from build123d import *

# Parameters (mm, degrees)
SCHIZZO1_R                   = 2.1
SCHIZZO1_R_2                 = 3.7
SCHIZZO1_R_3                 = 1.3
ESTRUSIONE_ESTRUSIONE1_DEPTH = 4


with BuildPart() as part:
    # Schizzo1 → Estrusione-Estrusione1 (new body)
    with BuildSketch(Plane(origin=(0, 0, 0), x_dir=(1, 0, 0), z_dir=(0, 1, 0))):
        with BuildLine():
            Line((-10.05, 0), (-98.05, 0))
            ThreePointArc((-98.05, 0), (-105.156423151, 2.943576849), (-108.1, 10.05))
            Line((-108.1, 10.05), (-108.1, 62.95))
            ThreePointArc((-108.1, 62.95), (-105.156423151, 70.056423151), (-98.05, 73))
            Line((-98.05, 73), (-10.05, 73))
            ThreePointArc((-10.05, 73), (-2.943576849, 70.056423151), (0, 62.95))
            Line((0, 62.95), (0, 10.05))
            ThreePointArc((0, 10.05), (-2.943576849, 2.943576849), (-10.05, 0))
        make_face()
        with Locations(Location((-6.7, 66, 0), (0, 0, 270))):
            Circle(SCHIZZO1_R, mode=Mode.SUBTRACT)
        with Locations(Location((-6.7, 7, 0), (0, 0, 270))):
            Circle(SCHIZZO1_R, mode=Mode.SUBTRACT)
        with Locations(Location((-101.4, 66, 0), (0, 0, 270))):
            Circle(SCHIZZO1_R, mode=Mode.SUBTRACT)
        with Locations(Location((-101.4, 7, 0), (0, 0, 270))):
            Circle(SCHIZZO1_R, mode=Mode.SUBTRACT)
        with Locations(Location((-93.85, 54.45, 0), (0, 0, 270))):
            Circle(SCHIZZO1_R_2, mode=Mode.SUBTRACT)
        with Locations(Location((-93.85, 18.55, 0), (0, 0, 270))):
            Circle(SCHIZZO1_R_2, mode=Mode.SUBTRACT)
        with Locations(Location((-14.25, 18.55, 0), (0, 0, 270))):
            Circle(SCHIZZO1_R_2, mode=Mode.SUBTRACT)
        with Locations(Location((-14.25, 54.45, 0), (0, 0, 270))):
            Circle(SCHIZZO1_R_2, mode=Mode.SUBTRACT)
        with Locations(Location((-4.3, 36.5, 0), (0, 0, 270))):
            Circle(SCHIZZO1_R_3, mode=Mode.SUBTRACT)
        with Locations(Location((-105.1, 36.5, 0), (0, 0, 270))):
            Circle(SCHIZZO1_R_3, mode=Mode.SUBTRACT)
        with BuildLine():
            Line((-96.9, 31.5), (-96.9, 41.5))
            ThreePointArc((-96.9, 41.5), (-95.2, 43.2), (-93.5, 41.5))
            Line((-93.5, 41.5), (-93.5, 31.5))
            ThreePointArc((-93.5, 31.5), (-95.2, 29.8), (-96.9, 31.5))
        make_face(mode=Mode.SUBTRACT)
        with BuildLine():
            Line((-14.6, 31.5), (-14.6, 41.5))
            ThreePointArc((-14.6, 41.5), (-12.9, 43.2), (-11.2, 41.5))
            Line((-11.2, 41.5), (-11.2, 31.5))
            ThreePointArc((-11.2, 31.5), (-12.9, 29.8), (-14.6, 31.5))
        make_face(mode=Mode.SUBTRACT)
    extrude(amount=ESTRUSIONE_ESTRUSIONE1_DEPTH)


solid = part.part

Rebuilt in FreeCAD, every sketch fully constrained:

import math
import FreeCAD as App
import Part
import Sketcher

doc = App.newDocument("Part")
body = doc.addObject("PartDesign::Body", "Body")

# Sketch on XZ plane
sketch1 = body.newObject("Sketcher::SketchObject", "Sketch")
sketch1.AttachmentSupport = (doc.getObject("XZ_Plane"), [""])
sketch1.MapMode = "FlatFace"
sketch1.addGeometry([
    Part.LineSegment(App.Vector(-98.05, 0, 0), App.Vector(-10.05, 0, 0)),  # 0
    Part.ArcOfCircle(Part.Circle(App.Vector(-10.05, -10.05, 0), App.Vector(0, 0, 1), 10.05), math.radians(0), math.radians(90)),  # 1
    Part.LineSegment(App.Vector(0, -10.05, 0), App.Vector(0, -62.95, 0)),  # 2
    Part.ArcOfCircle(Part.Circle(App.Vector(-10.05, -62.95, 0), App.Vector(0, 0, 1), 10.05), math.radians(-90), math.radians(0)),  # 3
    Part.LineSegment(App.Vector(-10.05, -73, 0), App.Vector(-98.05, -73, 0)),  # 4
    Part.ArcOfCircle(Part.Circle(App.Vector(-98.05, -62.95, 0), App.Vector(0, 0, 1), 10.05), math.radians(180), math.radians(270)),  # 5
    Part.LineSegment(App.Vector(-108.1, -62.95, 0), App.Vector(-108.1, -10.05, 0)),  # 6
    Part.ArcOfCircle(Part.Circle(App.Vector(-98.05, -10.05, 0), App.Vector(0, 0, 1), 10.05), math.radians(90), math.radians(180)),  # 7
    Part.Circle(App.Vector(-6.7, -7, 0), App.Vector(0, 0, 1), 2.1),  # 8
    Part.Circle(App.Vector(-14.25, -18.55, 0), App.Vector(0, 0, 1), 3.7),  # 9
    Part.Circle(App.Vector(-4.3, -36.5, 0), App.Vector(0, 0, 1), 1.3),  # 10
    Part.LineSegment(App.Vector(-14.6, -31.5, 0), App.Vector(-14.6, -41.5, 0)),  # 11
    Part.ArcOfCircle(Part.Circle(App.Vector(-12.9, -41.5, 0), App.Vector(0, 0, 1), 1.7), math.radians(180), math.radians(360)),  # 12
    Part.LineSegment(App.Vector(-11.2, -41.5, 0), App.Vector(-11.2, -31.5, 0)),  # 13
    Part.ArcOfCircle(Part.Circle(App.Vector(-12.9, -31.5, 0), App.Vector(0, 0, 1), 1.7), math.radians(0), math.radians(180)),  # 14
    Part.Circle(App.Vector(-101.4, -7, 0), App.Vector(0, 0, 1), 2.1),  # 15
    Part.Circle(App.Vector(-93.85, -18.55, 0), App.Vector(0, 0, 1), 3.7),  # 16
    Part.LineSegment(App.Vector(-96.9, -31.5, 0), App.Vector(-96.9, -41.5, 0)),  # 17
    Part.ArcOfCircle(Part.Circle(App.Vector(-95.2, -41.5, 0), App.Vector(0, 0, 1), 1.7), math.radians(180), math.radians(360)),  # 18
    Part.LineSegment(App.Vector(-93.5, -41.5, 0), App.Vector(-93.5, -31.5, 0)),  # 19
    Part.ArcOfCircle(Part.Circle(App.Vector(-95.2, -31.5, 0), App.Vector(0, 0, 1), 1.7), math.radians(0), math.radians(180)),  # 20
    Part.Circle(App.Vector(-105.1, -36.5, 0), App.Vector(0, 0, 1), 1.3),  # 21
    Part.Circle(App.Vector(-14.25, -54.45, 0), App.Vector(0, 0, 1), 3.7),  # 22
    Part.Circle(App.Vector(-6.7, -66, 0), App.Vector(0, 0, 1), 2.1),  # 23
    Part.Circle(App.Vector(-93.85, -54.45, 0), App.Vector(0, 0, 1), 3.7),  # 24
    Part.Circle(App.Vector(-101.4, -66, 0), App.Vector(0, 0, 1), 2.1),  # 25
], False)
sketch1.addConstraint([
    Sketcher.Constraint("Tangent", 0, 2, 1, 2),
    Sketcher.Constraint("Tangent", 1, 1, 2, 1),
    Sketcher.Constraint("Tangent", 2, 2, 3, 2),
    Sketcher.Constraint("Tangent", 3, 1, 4, 1),
    Sketcher.Constraint("Tangent", 4, 2, 5, 2),
    Sketcher.Constraint("Tangent", 5, 1, 6, 1),
    Sketcher.Constraint("Tangent", 6, 2, 7, 2),
    Sketcher.Constraint("Tangent", 7, 1, 0, 1),
    Sketcher.Constraint("Tangent", 11, 2, 12, 1),
    Sketcher.Constraint("Tangent", 12, 2, 13, 1),
    Sketcher.Constraint("Tangent", 13, 2, 14, 1),
    Sketcher.Constraint("Tangent", 14, 2, 11, 1),
    Sketcher.Constraint("Tangent", 17, 2, 18, 1),
    Sketcher.Constraint("Tangent", 18, 2, 19, 1),
    Sketcher.Constraint("Tangent", 19, 2, 20, 1),
    Sketcher.Constraint("Tangent", 20, 2, 17, 1),
    Sketcher.Constraint("Horizontal", 0),
    Sketcher.Constraint("Vertical", 2),
    Sketcher.Constraint("Horizontal", 4),
    Sketcher.Constraint("Vertical", 6),
    Sketcher.Constraint("Vertical", 11),
    Sketcher.Constraint("Vertical", 13),
    Sketcher.Constraint("Vertical", 17),
    Sketcher.Constraint("Vertical", 19),
    Sketcher.Constraint("Equal", 1, 3),
    Sketcher.Constraint("Equal", 3, 5),
    Sketcher.Constraint("Equal", 5, 7),
    Sketcher.Constraint("Equal", 8, 15),
    Sketcher.Constraint("Equal", 9, 16),
    Sketcher.Constraint("Equal", 14, 18),
    Sketcher.Constraint("Equal", 10, 21),
    Sketcher.Constraint("Equal", 16, 22),
    Sketcher.Constraint("Equal", 15, 23),
    Sketcher.Constraint("Equal", 22, 24),
    Sketcher.Constraint("Equal", 23, 25),
    Sketcher.Constraint("PointOnObject", 0, 2, -1),
    Sketcher.Constraint("PointOnObject", 1, 1, -2),
    Sketcher.Constraint("Horizontal", 8, 3, 15, 3),
    Sketcher.Constraint("Horizontal", 9, 3, 16, 3),
    Sketcher.Constraint("Horizontal", 12, 3, 18, 3),
    Sketcher.Constraint("Horizontal", 14, 3, 20, 3),
    Sketcher.Constraint("Horizontal", 10, 3, 21, 3),
    Sketcher.Constraint("Horizontal", 22, 3, 24, 3),
    Sketcher.Constraint("Horizontal", 23, 3, 25, 3),
    Sketcher.Constraint("Vertical", 9, 3, 22, 3),
    Sketcher.Constraint("Vertical", 8, 3, 23, 3),
    Sketcher.Constraint("Vertical", 16, 3, 24, 3),
    Sketcher.Constraint("Vertical", 15, 3, 25, 3),
    Sketcher.Constraint("Diameter", 8, 4.2),
    Sketcher.Constraint("Diameter", 9, 7.4),
    Sketcher.Constraint("Diameter", 10, 2.6),
    Sketcher.Constraint("Radius", 12, 1.7),
    Sketcher.Constraint("DistanceX", 0, 1, 0, 2, 88.0),
    Sketcher.Constraint("DistanceY", 11, 2, 11, 1, 10.0),
    Sketcher.Constraint("Radius", 1, 10.05),
    Sketcher.Constraint("DistanceY", 2, 2, 2, 1, 52.9),
    Sketcher.Constraint("DistanceY", 8, 3, -1, 1, 7.0),
    Sketcher.Constraint("DistanceY", 23, 3, -1, 1, 66.0),
    Sketcher.Constraint("DistanceY", 12, 3, 10, 3, 5.0),
    Sketcher.Constraint("DistanceX", 6, 2, 21, 3, 3.0),
    Sketcher.Constraint("DistanceX", 8, 3, -1, 1, 6.7),
    Sketcher.Constraint("DistanceX", 10, 3, -1, 1, 4.3),
    Sketcher.Constraint("DistanceY", 10, 3, -1, 1, 36.5),
    Sketcher.Constraint("DistanceX", 12, 3, -1, 1, 12.9),
    Sketcher.Constraint("DistanceX", 15, 3, -1, 1, 101.4),
    Sketcher.Constraint("DistanceX", 18, 3, -1, 1, 95.2),
    Sketcher.Constraint("DistanceX", 9, 3, 1, 3, 4.2),
    Sketcher.Constraint("DistanceY", 9, 3, 1, 3, 8.5),
    Sketcher.Constraint("DistanceX", 7, 3, 16, 3, 4.2),
    Sketcher.Constraint("DistanceY", 3, 3, 22, 3, 8.5),
])
pad1 = body.newObject("PartDesign::Pad", "Pad")
pad1.Profile = sketch1
pad1.Length = 4
pad1.Reversed = True

doc.recompute()
